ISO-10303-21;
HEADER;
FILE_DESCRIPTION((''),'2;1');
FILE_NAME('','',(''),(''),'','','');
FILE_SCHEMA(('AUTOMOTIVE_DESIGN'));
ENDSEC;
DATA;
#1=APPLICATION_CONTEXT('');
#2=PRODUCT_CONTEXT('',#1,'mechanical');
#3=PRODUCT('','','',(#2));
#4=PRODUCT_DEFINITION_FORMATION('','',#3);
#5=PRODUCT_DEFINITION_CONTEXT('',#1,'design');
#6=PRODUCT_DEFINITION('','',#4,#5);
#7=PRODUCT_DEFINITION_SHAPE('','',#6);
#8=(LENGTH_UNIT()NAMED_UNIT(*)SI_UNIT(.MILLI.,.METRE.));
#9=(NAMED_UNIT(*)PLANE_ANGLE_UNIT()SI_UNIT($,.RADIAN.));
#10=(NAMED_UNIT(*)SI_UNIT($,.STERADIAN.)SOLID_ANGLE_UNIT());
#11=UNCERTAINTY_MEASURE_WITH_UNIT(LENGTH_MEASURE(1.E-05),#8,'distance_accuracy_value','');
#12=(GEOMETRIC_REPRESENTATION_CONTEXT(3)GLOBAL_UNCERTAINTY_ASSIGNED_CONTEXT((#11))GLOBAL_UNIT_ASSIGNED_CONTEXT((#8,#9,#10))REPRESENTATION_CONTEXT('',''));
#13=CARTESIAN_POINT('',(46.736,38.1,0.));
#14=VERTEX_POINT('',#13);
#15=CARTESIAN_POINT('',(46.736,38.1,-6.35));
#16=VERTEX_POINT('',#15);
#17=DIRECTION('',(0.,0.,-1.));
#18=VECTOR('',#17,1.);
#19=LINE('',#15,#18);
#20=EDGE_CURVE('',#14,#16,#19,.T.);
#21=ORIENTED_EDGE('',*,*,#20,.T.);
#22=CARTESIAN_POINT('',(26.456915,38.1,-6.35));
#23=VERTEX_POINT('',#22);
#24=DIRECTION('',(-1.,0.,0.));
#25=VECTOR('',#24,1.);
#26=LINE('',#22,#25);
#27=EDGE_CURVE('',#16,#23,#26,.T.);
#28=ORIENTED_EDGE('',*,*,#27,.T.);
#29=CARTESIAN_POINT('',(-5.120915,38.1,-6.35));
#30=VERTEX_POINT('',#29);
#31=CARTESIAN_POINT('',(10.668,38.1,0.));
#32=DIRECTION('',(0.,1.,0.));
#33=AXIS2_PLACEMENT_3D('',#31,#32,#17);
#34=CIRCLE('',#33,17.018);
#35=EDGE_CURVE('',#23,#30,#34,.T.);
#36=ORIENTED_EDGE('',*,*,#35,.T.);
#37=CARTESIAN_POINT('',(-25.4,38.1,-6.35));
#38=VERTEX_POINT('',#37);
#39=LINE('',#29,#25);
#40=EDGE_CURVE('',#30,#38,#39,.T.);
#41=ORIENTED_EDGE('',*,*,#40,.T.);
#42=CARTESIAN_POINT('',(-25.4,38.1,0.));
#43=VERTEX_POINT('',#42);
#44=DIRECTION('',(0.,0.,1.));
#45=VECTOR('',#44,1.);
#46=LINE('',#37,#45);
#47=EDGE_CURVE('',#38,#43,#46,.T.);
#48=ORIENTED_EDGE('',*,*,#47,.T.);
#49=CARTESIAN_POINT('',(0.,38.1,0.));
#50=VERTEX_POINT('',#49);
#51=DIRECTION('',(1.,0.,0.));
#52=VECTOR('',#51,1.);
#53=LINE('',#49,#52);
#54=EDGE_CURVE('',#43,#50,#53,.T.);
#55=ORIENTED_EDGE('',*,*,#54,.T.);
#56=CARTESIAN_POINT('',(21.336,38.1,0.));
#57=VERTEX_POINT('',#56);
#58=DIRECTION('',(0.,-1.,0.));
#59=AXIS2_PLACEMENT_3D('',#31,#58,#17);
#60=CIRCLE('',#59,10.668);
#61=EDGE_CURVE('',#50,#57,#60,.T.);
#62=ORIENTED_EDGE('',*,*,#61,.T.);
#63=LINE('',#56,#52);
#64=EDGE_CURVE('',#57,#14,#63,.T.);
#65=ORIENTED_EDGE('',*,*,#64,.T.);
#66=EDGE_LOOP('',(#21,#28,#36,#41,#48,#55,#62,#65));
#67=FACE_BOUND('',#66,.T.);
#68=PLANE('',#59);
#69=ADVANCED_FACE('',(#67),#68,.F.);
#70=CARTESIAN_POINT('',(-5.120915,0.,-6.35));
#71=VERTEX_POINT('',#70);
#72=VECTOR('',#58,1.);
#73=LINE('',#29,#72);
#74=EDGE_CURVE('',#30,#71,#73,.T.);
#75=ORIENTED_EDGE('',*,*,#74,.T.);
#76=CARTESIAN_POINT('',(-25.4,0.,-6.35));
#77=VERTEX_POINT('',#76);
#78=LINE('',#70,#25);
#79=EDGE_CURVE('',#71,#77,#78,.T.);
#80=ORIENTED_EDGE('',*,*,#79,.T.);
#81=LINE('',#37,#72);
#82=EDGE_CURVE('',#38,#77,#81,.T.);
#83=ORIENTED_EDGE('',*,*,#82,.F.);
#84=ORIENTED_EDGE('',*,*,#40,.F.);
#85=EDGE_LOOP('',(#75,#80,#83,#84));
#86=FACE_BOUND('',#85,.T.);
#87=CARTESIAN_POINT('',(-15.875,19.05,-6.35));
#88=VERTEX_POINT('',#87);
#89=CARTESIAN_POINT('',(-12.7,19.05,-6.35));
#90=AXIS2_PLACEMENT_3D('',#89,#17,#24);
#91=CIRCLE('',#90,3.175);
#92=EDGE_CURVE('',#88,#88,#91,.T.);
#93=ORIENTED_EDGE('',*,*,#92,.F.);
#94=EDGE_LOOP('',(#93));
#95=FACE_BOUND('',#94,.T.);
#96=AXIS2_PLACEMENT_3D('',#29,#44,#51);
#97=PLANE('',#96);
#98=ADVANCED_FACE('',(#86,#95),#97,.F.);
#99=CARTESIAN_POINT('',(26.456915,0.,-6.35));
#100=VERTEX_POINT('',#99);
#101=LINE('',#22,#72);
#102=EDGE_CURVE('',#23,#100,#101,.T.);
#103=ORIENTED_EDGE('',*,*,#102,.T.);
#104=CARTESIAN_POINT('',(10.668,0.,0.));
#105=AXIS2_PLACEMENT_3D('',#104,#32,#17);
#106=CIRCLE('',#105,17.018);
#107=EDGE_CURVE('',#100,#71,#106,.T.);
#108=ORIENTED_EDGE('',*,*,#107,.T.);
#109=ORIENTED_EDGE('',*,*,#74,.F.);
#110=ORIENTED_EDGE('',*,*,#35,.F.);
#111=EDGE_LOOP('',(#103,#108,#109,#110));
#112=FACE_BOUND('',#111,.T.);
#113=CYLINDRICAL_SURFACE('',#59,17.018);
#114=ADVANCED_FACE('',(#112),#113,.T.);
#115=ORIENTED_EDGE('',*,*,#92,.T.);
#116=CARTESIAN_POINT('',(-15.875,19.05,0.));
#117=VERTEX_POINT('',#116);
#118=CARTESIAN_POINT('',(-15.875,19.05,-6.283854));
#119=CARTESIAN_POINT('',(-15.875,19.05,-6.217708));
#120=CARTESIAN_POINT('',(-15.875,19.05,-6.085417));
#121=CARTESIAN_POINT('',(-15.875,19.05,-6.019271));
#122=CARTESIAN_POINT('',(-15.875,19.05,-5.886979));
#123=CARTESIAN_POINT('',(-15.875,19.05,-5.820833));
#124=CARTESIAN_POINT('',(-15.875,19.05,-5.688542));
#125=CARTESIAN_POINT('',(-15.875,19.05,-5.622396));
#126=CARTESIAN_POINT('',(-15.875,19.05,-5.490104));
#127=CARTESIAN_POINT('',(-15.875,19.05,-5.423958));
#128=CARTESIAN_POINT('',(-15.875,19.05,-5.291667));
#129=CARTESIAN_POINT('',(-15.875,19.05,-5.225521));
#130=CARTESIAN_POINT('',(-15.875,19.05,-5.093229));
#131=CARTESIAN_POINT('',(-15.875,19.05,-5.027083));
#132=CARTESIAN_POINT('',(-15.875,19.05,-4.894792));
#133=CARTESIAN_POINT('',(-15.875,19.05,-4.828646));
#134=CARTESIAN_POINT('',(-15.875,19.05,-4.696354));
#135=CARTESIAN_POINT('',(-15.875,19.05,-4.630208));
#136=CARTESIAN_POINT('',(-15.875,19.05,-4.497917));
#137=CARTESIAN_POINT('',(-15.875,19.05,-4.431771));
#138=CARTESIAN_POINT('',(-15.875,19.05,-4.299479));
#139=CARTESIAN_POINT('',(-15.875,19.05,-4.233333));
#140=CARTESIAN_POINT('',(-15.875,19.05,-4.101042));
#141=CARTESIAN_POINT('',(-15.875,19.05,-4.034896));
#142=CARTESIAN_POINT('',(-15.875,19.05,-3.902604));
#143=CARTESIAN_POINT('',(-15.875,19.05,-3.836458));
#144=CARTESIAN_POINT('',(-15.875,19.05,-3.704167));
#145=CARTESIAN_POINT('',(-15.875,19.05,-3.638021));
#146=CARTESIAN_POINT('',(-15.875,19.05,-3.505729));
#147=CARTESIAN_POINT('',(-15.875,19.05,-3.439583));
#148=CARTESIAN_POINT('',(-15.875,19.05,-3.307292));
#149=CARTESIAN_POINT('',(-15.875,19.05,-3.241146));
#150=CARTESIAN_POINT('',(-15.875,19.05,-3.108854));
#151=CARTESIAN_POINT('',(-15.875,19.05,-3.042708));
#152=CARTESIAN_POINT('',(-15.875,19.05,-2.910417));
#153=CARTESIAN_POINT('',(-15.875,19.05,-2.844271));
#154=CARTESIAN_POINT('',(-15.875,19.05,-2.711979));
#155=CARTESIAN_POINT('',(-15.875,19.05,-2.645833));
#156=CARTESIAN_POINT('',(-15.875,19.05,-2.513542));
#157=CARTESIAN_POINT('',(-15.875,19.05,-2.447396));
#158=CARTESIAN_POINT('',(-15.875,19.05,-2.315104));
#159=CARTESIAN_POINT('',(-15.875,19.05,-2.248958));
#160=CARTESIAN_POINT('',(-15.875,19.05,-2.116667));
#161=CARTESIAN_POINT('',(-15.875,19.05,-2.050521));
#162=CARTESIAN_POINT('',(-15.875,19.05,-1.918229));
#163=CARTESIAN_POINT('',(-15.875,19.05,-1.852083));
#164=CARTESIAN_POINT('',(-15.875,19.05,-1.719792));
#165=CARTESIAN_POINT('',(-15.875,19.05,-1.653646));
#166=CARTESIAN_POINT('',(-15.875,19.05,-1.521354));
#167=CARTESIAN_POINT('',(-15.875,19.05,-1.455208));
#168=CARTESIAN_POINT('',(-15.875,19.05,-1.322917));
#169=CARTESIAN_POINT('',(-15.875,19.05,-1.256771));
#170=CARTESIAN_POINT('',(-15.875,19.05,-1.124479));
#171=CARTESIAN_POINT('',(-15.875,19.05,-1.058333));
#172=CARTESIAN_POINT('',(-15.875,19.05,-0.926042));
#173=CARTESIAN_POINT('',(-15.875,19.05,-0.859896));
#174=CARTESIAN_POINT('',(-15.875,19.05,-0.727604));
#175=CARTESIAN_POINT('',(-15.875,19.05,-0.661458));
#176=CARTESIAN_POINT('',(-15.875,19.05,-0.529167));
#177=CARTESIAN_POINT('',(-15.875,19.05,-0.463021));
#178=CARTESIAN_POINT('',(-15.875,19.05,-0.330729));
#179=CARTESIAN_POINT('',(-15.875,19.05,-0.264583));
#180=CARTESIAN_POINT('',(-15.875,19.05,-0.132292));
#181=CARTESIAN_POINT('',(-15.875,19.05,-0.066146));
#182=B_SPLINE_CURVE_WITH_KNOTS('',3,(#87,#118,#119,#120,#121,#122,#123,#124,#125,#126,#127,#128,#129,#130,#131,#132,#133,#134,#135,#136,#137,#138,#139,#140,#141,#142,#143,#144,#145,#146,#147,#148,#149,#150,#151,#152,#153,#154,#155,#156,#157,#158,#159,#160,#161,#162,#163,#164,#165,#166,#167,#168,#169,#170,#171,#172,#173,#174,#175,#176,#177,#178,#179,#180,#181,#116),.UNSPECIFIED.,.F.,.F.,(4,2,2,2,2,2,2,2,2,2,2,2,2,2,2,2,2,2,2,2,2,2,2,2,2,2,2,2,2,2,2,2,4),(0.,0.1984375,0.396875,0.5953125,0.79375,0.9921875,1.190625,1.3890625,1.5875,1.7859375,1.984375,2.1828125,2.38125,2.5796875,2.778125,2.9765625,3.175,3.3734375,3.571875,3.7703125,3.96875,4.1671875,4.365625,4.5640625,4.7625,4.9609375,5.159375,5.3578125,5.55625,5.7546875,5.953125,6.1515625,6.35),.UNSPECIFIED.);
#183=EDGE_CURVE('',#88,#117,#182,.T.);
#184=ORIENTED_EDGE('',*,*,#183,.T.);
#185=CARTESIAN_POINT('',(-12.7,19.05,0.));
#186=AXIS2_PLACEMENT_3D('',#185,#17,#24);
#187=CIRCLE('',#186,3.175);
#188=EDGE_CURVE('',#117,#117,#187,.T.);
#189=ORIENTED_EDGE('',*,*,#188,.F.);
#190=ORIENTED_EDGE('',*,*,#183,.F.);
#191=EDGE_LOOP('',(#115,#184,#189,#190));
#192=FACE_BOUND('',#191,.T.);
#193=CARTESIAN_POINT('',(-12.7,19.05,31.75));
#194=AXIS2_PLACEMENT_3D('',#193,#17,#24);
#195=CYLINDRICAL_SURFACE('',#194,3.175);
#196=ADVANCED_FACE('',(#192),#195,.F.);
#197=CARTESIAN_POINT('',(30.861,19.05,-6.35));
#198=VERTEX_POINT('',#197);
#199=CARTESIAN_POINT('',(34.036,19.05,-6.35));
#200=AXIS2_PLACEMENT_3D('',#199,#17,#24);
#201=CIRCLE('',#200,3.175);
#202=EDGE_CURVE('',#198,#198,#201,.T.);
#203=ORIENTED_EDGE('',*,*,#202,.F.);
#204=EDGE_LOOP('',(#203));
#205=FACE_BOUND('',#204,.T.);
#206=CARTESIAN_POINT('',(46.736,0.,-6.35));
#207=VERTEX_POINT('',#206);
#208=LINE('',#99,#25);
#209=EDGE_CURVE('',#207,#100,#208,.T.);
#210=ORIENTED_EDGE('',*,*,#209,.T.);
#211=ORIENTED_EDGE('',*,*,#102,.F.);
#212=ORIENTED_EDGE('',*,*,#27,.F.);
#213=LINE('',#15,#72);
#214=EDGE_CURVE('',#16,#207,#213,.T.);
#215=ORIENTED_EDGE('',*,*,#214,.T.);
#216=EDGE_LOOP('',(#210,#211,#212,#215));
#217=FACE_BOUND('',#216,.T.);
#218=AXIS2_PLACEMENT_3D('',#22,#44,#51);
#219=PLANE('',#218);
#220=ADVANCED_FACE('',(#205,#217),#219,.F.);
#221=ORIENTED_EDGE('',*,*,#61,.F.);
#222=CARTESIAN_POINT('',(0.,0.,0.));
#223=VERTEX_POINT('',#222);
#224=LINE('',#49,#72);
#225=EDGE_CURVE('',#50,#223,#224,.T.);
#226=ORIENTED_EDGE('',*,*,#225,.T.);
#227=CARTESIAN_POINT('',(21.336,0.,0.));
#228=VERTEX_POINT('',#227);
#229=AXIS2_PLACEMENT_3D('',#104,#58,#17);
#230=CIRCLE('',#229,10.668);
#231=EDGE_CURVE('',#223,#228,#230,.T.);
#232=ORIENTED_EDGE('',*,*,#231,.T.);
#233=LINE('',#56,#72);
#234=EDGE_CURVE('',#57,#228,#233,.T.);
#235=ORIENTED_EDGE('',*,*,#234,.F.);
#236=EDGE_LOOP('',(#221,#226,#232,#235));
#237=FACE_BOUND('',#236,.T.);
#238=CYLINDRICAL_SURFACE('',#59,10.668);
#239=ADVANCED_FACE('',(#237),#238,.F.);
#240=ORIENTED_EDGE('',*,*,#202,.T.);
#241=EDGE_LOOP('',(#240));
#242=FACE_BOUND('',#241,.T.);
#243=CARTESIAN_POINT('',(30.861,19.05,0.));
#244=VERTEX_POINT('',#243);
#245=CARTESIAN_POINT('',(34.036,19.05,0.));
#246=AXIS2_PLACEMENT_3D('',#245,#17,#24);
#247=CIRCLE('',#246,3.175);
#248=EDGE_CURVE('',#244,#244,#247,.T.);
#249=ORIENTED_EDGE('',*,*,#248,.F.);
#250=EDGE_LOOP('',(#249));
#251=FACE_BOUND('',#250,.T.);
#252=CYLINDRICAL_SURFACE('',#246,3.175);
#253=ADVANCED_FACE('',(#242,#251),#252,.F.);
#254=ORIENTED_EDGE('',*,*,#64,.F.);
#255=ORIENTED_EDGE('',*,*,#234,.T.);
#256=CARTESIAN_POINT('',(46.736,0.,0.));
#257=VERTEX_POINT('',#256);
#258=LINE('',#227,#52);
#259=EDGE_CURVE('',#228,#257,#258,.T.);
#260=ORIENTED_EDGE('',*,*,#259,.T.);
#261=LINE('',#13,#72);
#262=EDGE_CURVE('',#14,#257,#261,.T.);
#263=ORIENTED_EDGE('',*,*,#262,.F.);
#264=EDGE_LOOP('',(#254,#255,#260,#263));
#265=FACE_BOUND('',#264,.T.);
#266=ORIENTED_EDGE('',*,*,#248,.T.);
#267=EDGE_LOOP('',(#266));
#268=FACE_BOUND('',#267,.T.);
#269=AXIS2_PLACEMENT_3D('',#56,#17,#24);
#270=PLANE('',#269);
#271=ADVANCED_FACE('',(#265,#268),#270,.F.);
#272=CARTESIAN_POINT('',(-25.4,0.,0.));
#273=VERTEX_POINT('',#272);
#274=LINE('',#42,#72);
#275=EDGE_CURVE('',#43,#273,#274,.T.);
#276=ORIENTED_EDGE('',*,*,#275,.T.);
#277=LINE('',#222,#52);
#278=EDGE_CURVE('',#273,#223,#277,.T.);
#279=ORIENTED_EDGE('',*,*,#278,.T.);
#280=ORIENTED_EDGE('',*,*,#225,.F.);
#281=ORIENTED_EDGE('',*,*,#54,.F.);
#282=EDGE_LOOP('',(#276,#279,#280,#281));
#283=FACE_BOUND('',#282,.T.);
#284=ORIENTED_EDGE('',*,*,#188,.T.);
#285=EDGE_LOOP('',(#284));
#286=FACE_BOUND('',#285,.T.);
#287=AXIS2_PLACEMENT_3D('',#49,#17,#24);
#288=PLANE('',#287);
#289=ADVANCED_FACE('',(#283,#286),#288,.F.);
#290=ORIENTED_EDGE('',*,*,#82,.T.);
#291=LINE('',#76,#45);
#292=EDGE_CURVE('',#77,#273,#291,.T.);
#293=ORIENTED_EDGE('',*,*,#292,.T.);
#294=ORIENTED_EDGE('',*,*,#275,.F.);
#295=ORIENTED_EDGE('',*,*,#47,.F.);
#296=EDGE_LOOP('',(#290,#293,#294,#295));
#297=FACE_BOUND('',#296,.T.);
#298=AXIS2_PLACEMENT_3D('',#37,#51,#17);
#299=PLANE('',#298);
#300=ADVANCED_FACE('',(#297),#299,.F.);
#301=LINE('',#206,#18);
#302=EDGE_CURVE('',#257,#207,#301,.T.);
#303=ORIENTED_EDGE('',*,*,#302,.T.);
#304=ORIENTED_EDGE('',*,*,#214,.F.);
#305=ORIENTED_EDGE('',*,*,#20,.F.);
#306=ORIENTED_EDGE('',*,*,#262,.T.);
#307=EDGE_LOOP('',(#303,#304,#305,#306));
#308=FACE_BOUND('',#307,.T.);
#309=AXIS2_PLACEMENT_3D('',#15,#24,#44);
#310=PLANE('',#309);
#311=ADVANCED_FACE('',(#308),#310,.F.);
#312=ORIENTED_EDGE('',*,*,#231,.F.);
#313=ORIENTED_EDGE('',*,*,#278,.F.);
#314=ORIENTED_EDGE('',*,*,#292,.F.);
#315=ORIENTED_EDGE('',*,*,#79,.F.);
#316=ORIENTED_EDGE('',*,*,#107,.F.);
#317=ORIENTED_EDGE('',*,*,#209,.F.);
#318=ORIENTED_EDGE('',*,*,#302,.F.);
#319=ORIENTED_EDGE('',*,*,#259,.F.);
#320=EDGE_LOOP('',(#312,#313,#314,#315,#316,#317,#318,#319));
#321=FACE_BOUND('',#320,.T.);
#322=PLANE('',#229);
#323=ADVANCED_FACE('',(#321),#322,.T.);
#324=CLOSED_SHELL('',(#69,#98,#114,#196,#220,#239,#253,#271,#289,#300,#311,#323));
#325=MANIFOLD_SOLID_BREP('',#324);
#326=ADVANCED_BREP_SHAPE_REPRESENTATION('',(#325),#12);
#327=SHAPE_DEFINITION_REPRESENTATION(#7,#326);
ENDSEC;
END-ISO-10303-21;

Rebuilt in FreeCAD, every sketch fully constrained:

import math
import FreeCAD as App
import Part
import Sketcher
Q = App.Units.Quantity

doc = App.newDocument("Part")
body = doc.addObject("PartDesign::Body", "Body")

# Sketch on XZ plane
sketch1 = body.newObject("Sketcher::SketchObject", "Sketch")
sketch1.AttachmentSupport = (doc.getObject("XZ_Plane"), [""])
sketch1.MapMode = "FlatFace"
sketch1.addGeometry([
    Part.LineSegment(App.Vector(-25.4, 0, 0), App.Vector(0, 0, 0)),  # 0
    Part.ArcOfCircle(Part.Circle(App.Vector(10.668, 0, 0), App.Vector(0, 0, 1), 10.668), math.radians(180), math.radians(360)),  # 1
    Part.LineSegment(App.Vector(21.336, 0, 0), App.Vector(46.736, 0, 0)),  # 2
    Part.LineSegment(App.Vector(46.736, 0, 0), App.Vector(46.736, -6.35, 0)),  # 3
    Part.LineSegment(App.Vector(46.736, -6.35, 0), App.Vector(26.456915, -6.35, 0)),  # 4
    Part.ArcOfCircle(Part.Circle(App.Vector(10.668, 0, 0), App.Vector(0, 0, 1), 17.018), math.radians(-158.09095), math.radians(-21.90905)),  # 5
    Part.LineSegment(App.Vector(-5.120915, -6.35, 0), App.Vector(-25.4, -6.35, 0)),  # 6
    Part.LineSegment(App.Vector(-25.4, -6.35, 0), App.Vector(-25.4, 0, 0)),  # 7
], False)
sketch1.addConstraint([
    Sketcher.Constraint("Coincident", 0, 2, 1, 1),
    Sketcher.Constraint("Coincident", 1, 2, 2, 1),
    Sketcher.Constraint("Coincident", 2, 2, 3, 1),
    Sketcher.Constraint("Coincident", 3, 2, 4, 1),
    Sketcher.Constraint("Coincident", 4, 2, 5, 2),
    Sketcher.Constraint("Coincident", 5, 1, 6, 1),
    Sketcher.Constraint("Coincident", 6, 2, 7, 1),
    Sketcher.Constraint("Coincident", 7, 2, 0, 1),
    Sketcher.Constraint("Horizontal", 0),
    Sketcher.Constraint("Horizontal", 2),
    Sketcher.Constraint("Vertical", 3),
    Sketcher.Constraint("Horizontal", 4),
    Sketcher.Constraint("Horizontal", 6),
    Sketcher.Constraint("Vertical", 7),
    Sketcher.Constraint("Coincident", 0, 2, -1, 1),
    Sketcher.Constraint("Coincident", 5, 3, 1, 3),
    Sketcher.Constraint("PointOnObject", 1, 3, -1),
    Sketcher.Constraint("PointOnObject", 1, 2, -1),
    Sketcher.Constraint("Horizontal", 4, 2, 5, 1),
    Sketcher.Constraint("Equal", 0, 2),
    Sketcher.Constraint("DistanceX", 0, 1, 0, 2, Q("1 in")),
    Sketcher.Constraint("Radius", 1, Q("0.42 in")),
    Sketcher.Constraint("Radius", 5, Q("0.67 in")),
    Sketcher.Constraint("DistanceY", 3, 2, 3, 1, Q("0.25 in")),
])
pad1 = body.newObject("PartDesign::Pad", "Pad")
pad1.Profile = sketch1
pad1.Length = Q("1.5 in")
pad1.Reversed = True

# Sketch on XY plane
sketch2 = body.newObject("Sketcher::SketchObject", "Sketch001")
sketch2.AttachmentSupport = (doc.getObject("XY_Plane"), [""])
sketch2.MapMode = "FlatFace"
sketch2.AttachmentOffset = App.Placement(App.Vector(0, 0, -0.25 * 25.4), App.Rotation())
sketch2.addGeometry(Part.Circle(App.Vector(-12.7, 19.05, 0), App.Vector(0, 0, 1), 3.175), False)
sketch2.addConstraint([
    Sketcher.Constraint("Diameter", 0, Q("0.25 in")),
    Sketcher.Constraint("DistanceX", 0, 3, -1, 1, Q("0.5 in")),
    Sketcher.Constraint("DistanceY", -1, 1, 0, 3, Q("0.75 in")),
])
pocket1 = body.newObject("PartDesign::Pocket", "Pocket")
pocket1.Profile = sketch2
pocket1.Length = Q("1.5 in")
pocket1.Reversed = True

# Sketch on XY plane
sketch3 = body.newObject("Sketcher::SketchObject", "Sketch002")
sketch3.AttachmentSupport = (doc.getObject("XY_Plane"), [""])
sketch3.MapMode = "FlatFace"
sketch3.AttachmentOffset = App.Placement(App.Vector(0, 0, -0.25 * 25.4), App.Rotation())
sketch3.addGeometry(Part.Circle(App.Vector(34.036, 19.05, 0), App.Vector(0, 0, 1), 3.175), False)
sketch3.addConstraint([
    Sketcher.Constraint("Diameter", 0, Q("0.25 in")),
    Sketcher.Constraint("DistanceX", -1, 1, 0, 3, Q("1.34 in")),
    Sketcher.Constraint("DistanceY", -1, 1, 0, 3, Q("0.75 in")),
])
pocket2 = body.newObject("PartDesign::Pocket", "Pocket001")
pocket2.Profile = sketch3
pocket2.Type = "ThroughAll"
pocket2.Reversed = True

doc.recompute()
